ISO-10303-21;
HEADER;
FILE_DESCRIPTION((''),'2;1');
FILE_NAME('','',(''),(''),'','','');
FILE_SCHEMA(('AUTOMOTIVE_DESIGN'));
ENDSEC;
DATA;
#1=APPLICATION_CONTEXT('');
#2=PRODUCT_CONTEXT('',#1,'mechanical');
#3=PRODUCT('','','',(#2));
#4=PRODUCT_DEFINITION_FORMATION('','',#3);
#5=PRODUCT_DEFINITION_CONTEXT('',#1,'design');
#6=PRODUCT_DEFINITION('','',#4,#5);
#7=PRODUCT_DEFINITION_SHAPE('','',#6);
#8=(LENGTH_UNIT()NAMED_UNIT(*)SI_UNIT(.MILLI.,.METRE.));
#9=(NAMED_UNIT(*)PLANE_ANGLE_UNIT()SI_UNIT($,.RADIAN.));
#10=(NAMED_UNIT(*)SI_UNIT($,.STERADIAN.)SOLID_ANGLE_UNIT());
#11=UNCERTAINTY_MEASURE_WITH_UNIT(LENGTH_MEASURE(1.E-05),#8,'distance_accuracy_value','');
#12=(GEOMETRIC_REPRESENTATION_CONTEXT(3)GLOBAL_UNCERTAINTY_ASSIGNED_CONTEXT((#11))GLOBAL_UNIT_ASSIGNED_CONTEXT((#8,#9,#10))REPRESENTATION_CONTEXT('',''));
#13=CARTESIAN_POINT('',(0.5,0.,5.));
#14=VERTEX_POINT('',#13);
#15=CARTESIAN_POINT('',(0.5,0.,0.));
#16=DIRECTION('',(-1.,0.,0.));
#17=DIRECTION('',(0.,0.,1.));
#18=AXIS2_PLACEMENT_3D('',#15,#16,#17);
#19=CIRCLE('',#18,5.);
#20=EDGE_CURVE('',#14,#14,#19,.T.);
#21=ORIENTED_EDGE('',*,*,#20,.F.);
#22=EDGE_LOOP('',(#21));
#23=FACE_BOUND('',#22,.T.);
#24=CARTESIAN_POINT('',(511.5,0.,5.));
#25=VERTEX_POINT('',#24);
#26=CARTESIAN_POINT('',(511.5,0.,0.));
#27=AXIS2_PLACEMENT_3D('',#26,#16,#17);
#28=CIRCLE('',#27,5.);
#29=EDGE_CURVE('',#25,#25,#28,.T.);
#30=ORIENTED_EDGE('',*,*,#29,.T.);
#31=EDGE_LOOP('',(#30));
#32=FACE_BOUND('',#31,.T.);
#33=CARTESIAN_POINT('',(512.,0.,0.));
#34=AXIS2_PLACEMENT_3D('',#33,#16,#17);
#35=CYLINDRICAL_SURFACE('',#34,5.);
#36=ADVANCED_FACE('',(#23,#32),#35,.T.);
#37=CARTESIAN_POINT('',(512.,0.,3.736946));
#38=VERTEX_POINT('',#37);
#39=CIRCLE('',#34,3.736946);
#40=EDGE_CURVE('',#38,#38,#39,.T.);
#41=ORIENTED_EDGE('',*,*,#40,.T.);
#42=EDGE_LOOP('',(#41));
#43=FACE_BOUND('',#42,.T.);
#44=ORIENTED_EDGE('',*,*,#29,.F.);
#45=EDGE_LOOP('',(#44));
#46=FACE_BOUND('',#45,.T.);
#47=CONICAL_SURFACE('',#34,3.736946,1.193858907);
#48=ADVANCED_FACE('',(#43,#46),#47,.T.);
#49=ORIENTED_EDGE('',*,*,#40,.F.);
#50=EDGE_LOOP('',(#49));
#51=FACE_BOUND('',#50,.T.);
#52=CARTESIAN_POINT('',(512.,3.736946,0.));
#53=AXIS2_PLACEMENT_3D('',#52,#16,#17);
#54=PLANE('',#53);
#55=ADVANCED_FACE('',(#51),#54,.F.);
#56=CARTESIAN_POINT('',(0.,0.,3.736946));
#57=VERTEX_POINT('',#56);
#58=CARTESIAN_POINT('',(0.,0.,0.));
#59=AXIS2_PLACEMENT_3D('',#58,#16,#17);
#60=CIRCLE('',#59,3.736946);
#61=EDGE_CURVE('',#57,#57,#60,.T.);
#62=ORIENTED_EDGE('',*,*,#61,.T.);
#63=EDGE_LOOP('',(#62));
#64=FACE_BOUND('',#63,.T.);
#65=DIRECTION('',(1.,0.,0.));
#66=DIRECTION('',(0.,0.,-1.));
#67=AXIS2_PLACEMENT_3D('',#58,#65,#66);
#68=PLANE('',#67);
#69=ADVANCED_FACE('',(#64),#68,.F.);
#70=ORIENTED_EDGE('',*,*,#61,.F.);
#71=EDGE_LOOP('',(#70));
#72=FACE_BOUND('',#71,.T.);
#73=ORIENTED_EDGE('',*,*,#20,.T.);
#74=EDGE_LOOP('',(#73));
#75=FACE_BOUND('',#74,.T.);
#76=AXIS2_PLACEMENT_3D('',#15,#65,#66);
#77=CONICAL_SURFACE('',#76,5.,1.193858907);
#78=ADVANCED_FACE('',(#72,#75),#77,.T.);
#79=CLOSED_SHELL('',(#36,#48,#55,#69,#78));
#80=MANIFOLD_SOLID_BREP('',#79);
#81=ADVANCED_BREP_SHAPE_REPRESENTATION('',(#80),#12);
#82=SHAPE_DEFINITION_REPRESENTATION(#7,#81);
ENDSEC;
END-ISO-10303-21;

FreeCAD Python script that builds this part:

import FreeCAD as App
import Part
import Sketcher

doc = App.newDocument("Part")
body = doc.addObject("PartDesign::Body", "Body")

sketch1 = body.newObject("Sketcher::SketchObject", "Sketch")
sketch1.AttachmentSupport = (doc.getObject("XY_Plane"), [""])
sketch1.MapMode = "FlatFace"
sketch1.addGeometry([
    Part.LineSegment(App.Vector(0, 3.736946, 0), App.Vector(0, 0, 0)),
    Part.LineSegment(App.Vector(0, 0, 0), App.Vector(512, 0, 0)),
    Part.LineSegment(App.Vector(512, 0, 0), App.Vector(512, 3.736946, 0)),
    Part.LineSegment(App.Vector(512, 3.736946, 0), App.Vector(511.5, 5, 0)),
    Part.LineSegment(App.Vector(511.5, 5, 0), App.Vector(0.5, 5, 0)),
    Part.LineSegment(App.Vector(0.5, 5, 0), App.Vector(0, 3.736946, 0)),
], False)
sketch1.addConstraint([
    Sketcher.Constraint("Coincident", 0, 2, 1, 1),
    Sketcher.Constraint("Coincident", 1, 2, 2, 1),
    Sketcher.Constraint("Coincident", 2, 2, 3, 1),
    Sketcher.Constraint("Coincident", 3, 2, 4, 1),
    Sketcher.Constraint("Coincident", 4, 2, 5, 1),
    Sketcher.Constraint("Coincident", 5, 2, 0, 1),
    Sketcher.Constraint("Vertical", 0),
    Sketcher.Constraint("Horizontal", 1),
    Sketcher.Constraint("Vertical", 2),
    Sketcher.Constraint("Horizontal", 4),
    Sketcher.Constraint("Coincident", 0, 2, -1, 1),
    Sketcher.Constraint("Horizontal", 2, 2, 5, 2),
    Sketcher.Constraint("Equal", 3, 5),
    Sketcher.Constraint("DistanceX", 1, 1, 1, 2, 512.0),
    Sketcher.Constraint("DistanceX", 4, 2, 4, 1, 511.0),
    Sketcher.Constraint("DistanceY", -1, 1, 3, 2, 5.0),
    Sketcher.Constraint("Distance", 3, 1.35842),
])
revolution = body.newObject("PartDesign::Revolution", "Revolution")
revolution.Profile = sketch1
revolution.ReferenceAxis = (sketch1, ["H_Axis"])
revolution.Angle = 360

doc.recompute()
